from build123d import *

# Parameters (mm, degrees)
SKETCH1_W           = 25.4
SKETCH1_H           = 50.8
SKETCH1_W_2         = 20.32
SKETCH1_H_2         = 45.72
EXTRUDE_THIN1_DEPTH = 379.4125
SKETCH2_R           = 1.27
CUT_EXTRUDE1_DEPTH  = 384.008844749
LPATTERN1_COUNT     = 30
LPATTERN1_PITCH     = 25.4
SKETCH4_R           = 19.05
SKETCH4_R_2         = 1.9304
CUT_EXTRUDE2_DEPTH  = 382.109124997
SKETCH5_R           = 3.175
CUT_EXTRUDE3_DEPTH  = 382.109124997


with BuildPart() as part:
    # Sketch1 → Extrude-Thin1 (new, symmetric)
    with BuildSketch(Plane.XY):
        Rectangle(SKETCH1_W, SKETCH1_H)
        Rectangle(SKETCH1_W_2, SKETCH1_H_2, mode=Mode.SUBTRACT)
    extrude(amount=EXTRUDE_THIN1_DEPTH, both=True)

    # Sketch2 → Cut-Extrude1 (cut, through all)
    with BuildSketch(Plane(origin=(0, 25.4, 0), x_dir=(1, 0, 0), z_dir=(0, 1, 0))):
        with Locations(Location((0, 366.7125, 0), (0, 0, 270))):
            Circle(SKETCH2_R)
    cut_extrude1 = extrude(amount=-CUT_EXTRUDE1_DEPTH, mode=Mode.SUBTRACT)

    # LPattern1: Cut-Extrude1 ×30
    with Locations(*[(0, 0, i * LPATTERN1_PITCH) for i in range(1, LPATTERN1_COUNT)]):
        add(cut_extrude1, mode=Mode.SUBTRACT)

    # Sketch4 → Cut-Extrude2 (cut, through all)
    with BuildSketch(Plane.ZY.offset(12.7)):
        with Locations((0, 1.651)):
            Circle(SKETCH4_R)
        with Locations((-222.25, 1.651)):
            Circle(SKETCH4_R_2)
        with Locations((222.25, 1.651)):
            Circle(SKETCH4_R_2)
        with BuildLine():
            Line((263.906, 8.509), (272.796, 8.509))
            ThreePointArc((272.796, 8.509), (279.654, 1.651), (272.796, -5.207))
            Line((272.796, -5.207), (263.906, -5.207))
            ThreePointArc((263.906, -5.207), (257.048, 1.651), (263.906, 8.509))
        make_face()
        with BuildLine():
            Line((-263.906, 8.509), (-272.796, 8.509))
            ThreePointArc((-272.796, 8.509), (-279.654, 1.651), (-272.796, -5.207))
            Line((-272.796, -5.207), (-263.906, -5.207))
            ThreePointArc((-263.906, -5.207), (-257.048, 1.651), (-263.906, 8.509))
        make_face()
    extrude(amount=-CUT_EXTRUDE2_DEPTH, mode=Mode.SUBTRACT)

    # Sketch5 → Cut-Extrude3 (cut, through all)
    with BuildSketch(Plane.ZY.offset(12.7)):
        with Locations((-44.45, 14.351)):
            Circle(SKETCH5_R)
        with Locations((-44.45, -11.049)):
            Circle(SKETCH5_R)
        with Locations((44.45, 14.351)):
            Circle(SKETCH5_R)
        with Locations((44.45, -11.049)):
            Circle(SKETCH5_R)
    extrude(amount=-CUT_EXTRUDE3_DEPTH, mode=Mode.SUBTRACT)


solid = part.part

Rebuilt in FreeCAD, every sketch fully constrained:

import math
import FreeCAD as App
import Part
import Sketcher
Q = App.Units.Quantity


def add_polygon(sketch, points):
    """Adds a closed chain of lines whose ends are joined by coincident constraints."""
    first, n = sketch.GeometryCount, len(points)
    for a, b in zip(points, points[1:] + points[:1]):
        sketch.addGeometry(Part.LineSegment(App.Vector(*a, 0), App.Vector(*b, 0)), False)
    for i in range(n):
        sketch.addConstraint(Sketcher.Constraint("Coincident", first + i, 2, first + (i + 1) % n, 1))

doc = App.newDocument("Part")
params = doc.addObject("Spreadsheet::Sheet", "Params")
for row, (alias, value) in enumerate([
    ("sketch1_width", "1 in"),
    ("sketch1_height", "2 in"),
    ("sketch1_width2", "0.8 in"),
    ("sketch1_height2", "1.8 in"),
    ("pad1_length", "29.875 in"),
    ("sketch2_diameter", "0.1 in"),
    ("linearpattern_pitch", "1 in"),
    ("sketch3_diameter", "1.5 in"),
    ("sketch3_radius", "0.27 in"),
    ("sketch3_diameter2", "0.152 in"),
    ("sketch3_height", "0.35 in"),
    ("sketch4_diameter", "0.25 in"),
], start=1):
    params.set(f"A{row}", alias)
    params.set(f"B{row}", "=" + value)
    params.setAlias(f"B{row}", alias)

body = doc.addObject("PartDesign::Body", "Body")

# Sketch on XY plane
sketch1 = doc.addObject("Sketcher::SketchObject", "Sketch")
body.addObject(sketch1)
sketch1.AttachmentSupport = (doc.XY_Plane, [""])
sketch1.MapMode = "FlatFace"
add_polygon(sketch1, [(-12.7, 25.4), (-12.7, -25.4), (12.7, -25.4), (12.7, 25.4)])  # lines 0-3
add_polygon(sketch1, [(10.16, -22.86), (-10.16, -22.86), (-10.16, 22.86), (10.16, 22.86)])  # lines 4-7
sketch1.addConstraint([
    Sketcher.Constraint("Vertical", 0),
    Sketcher.Constraint("Horizontal", 1),
    Sketcher.Constraint("Vertical", 2),
    Sketcher.Constraint("Horizontal", 3),
    Sketcher.Constraint("Horizontal", 4),
    Sketcher.Constraint("Vertical", 5),
    Sketcher.Constraint("Horizontal", 6),
    Sketcher.Constraint("Vertical", 7),
    Sketcher.Constraint("Symmetric", 0, 2, 2, 2, -1, 1),
    Sketcher.Constraint("Symmetric", 4, 2, 6, 2, -1, 1),
    Sketcher.Constraint("DistanceX", 1, 1, 1, 2, Q("1 in")),
    Sketcher.Constraint("DistanceY", 0, 2, 0, 1, Q("2 in")),
    Sketcher.Constraint("DistanceX", 4, 2, 4, 1, Q("0.8 in")),
    Sketcher.Constraint("DistanceY", 5, 1, 5, 2, Q("1.8 in")),
])
sketch1.setExpression("Constraints[18]", "Params.sketch1_width")
sketch1.setExpression("Constraints[19]", "Params.sketch1_height")
sketch1.setExpression("Constraints[20]", "Params.sketch1_width2")
sketch1.setExpression("Constraints[21]", "Params.sketch1_height2")
pad1 = doc.addObject("PartDesign::Pad", "Pad")
body.addObject(pad1)
pad1.Profile = sketch1
pad1.setExpression("Length", "Params.pad1_length")
pad1.Midplane = True

# Sketch on XZ plane
sketch2 = doc.addObject("Sketcher::SketchObject", "Sketch001")
body.addObject(sketch2)
sketch2.AttachmentSupport = (doc.XZ_Plane, [""])
sketch2.MapMode = "FlatFace"
sketch2.AttachmentOffset = App.Placement(App.Vector(0, 0, -1 * 25.4), App.Rotation())
sketch2.addGeometry(Part.Circle(App.Vector(0, -366.7125, 0), App.Vector(0, 0, 1), 1.27), False)
sketch2.addConstraint([
    Sketcher.Constraint("PointOnObject", 0, 3, -2),
    Sketcher.Constraint("Diameter", 0, Q("0.1 in")),
    Sketcher.Constraint("DistanceY", 0, 3, -1, 1, Q("14.4375 in")),
])
sketch2.setExpression("Constraints[1]", "Params.sketch2_diameter")
pocket1 = doc.addObject("PartDesign::Pocket", "Pocket")
body.addObject(pocket1)
pocket1.Profile = sketch2
pocket1.Type = "ThroughAll"
pocket1.Reversed = True
doc.recompute()

linearpattern = doc.addObject("PartDesign::LinearPattern", "LinearPattern")
body.addObject(linearpattern)
linearpattern.Originals = [pocket1]
linearpattern.Direction = (doc.Z_Axis, [""])
linearpattern.Mode = "offset"
linearpattern.setExpression("Offset", "Params.linearpattern_pitch")
linearpattern.Occurrences = 30
body.Tip = linearpattern

# Sketch on YZ plane
sketch3 = doc.addObject("Sketcher::SketchObject", "Sketch002")
body.addObject(sketch3)
sketch3.AttachmentSupport = (doc.YZ_Plane, [""])
sketch3.MapMode = "FlatFace"
sketch3.AttachmentOffset = App.Placement(App.Vector(0, 0, -0.5 * 25.4), App.Rotation())
sketch3.addGeometry([
    Part.Circle(App.Vector(1.651, 0, 0), App.Vector(0, 0, 1), 19.05),  # 0
    Part.Circle(App.Vector(1.651, -222.25, 0), App.Vector(0, 0, 1), 1.9304),  # 1
    Part.Circle(App.Vector(1.651, 222.25, 0), App.Vector(0, 0, 1), 1.9304),  # 2
    Part.LineSegment(App.Vector(8.509, 272.796, 0), App.Vector(8.509, 263.906, 0)),  # 3
    Part.ArcOfCircle(Part.Circle(App.Vector(1.651, 263.906, 0), App.Vector(0, 0, 1), 6.858), math.radians(180), math.radians(360)),  # 4
    Part.LineSegment(App.Vector(-5.207, 263.906, 0), App.Vector(-5.207, 272.796, 0)),  # 5
    Part.ArcOfCircle(Part.Circle(App.Vector(1.651, 272.796, 0), App.Vector(0, 0, 1), 6.858), math.radians(0), math.radians(180)),  # 6
    Part.LineSegment(App.Vector(8.509, -263.906, 0), App.Vector(8.509, -272.796, 0)),  # 7
    Part.ArcOfCircle(Part.Circle(App.Vector(1.651, -272.796, 0), App.Vector(0, 0, 1), 6.858), math.radians(180), math.radians(360)),  # 8
    Part.LineSegment(App.Vector(-5.207, -272.796, 0), App.Vector(-5.207, -263.906, 0)),  # 9
    Part.ArcOfCircle(Part.Circle(App.Vector(1.651, -263.906, 0), App.Vector(0, 0, 1), 6.858), math.radians(0), math.radians(180)),  # 10
], False)
sketch3.addConstraint([
    Sketcher.Constraint("Tangent", 3, 2, 4, 2),
    Sketcher.Constraint("Tangent", 4, 1, 5, 1),
    Sketcher.Constraint("Tangent", 5, 2, 6, 2),
    Sketcher.Constraint("Tangent", 6, 1, 3, 1),
    Sketcher.Constraint("Tangent", 7, 2, 8, 2),
    Sketcher.Constraint("Tangent", 8, 1, 9, 1),
    Sketcher.Constraint("Tangent", 9, 2, 10, 2),
    Sketcher.Constraint("Tangent", 10, 1, 7, 1),
    Sketcher.Constraint("Vertical", 3),
    Sketcher.Constraint("Vertical", 5),
    Sketcher.Constraint("Vertical", 7),
    Sketcher.Constraint("Vertical", 9),
    Sketcher.Constraint("Equal", 1, 2),
    Sketcher.Constraint("Equal", 6, 8),
    Sketcher.Constraint("Symmetric", 1, 3, 2, 3, -1),
    Sketcher.Constraint("Symmetric", 6, 3, 8, 3, -1),
    Sketcher.Constraint("PointOnObject", 0, 3, -1),
    Sketcher.Constraint("Vertical", 0, 3, 1, 3),
    Sketcher.Constraint("Vertical", 2, 3, 4, 3),
    Sketcher.Constraint("Equal", 5, 7),
    Sketcher.Constraint("Diameter", 0, Q("1.5 in")),
    Sketcher.Constraint("Radius", 4, Q("0.27 in")),
    Sketcher.Constraint("Diameter", 1, Q("0.152 in")),
    Sketcher.Constraint("DistanceY", 3, 2, 3, 1, Q("0.35 in")),
    Sketcher.Constraint("DistanceY", 1, 3, 2, 3, Q("17.5 in")),
    Sketcher.Constraint("DistanceY", -1, 1, 4, 3, Q("10.39 in")),
    Sketcher.Constraint("DistanceX", -1, 1, 0, 3, Q("0.065 in")),
])
sketch3.setExpression("Constraints[20]", "Params.sketch3_diameter")
sketch3.setExpression("Constraints[21]", "Params.sketch3_radius")
sketch3.setExpression("Constraints[22]", "Params.sketch3_diameter2")
sketch3.setExpression("Constraints[23]", "Params.sketch3_height")
pocket2 = doc.addObject("PartDesign::Pocket", "Pocket001")
body.addObject(pocket2)
pocket2.Profile = sketch3
pocket2.Type = "ThroughAll"
pocket2.Reversed = True

# Sketch on YZ plane
sketch4 = doc.addObject("Sketcher::SketchObject", "Sketch003")
body.addObject(sketch4)
sketch4.AttachmentSupport = (doc.YZ_Plane, [""])
sketch4.MapMode = "FlatFace"
sketch4.AttachmentOffset = App.Placement(App.Vector(0, 0, -0.5 * 25.4), App.Rotation())
sketch4.addGeometry([
    Part.Circle(App.Vector(14.351, -44.45, 0), App.Vector(0, 0, 1), 3.175),
    Part.Circle(App.Vector(-11.049, -44.45, 0), App.Vector(0, 0, 1), 3.175),
    Part.Circle(App.Vector(14.351, 44.45, 0), App.Vector(0, 0, 1), 3.175),
    Part.Circle(App.Vector(-11.049, 44.45, 0), App.Vector(0, 0, 1), 3.175),
], False)
sketch4.addConstraint([
    Sketcher.Constraint("Equal", 0, 1),
    Sketcher.Constraint("Equal", 1, 2),
    Sketcher.Constraint("Equal", 2, 3),
    Sketcher.Constraint("Symmetric", 0, 3, 2, 3, -1),
    Sketcher.Constraint("Symmetric", 1, 3, 3, 3, -1),
    Sketcher.Constraint("Horizontal", 0, 3, 1, 3),
    Sketcher.Constraint("Diameter", 0, Q("0.25 in")),
    Sketcher.Constraint("DistanceX", 1, 3, 0, 3, Q("1 in")),
    Sketcher.Constraint("DistanceY", 0, 3, 2, 3, Q("3.5 in")),
    Sketcher.Constraint("DistanceX", -1, 1, 0, 3, Q("0.565 in")),
])
sketch4.setExpression("Constraints[6]", "Params.sketch4_diameter")
pocket3 = doc.addObject("PartDesign::Pocket", "Pocket002")
body.addObject(pocket3)
pocket3.Profile = sketch4
pocket3.Type = "ThroughAll"
pocket3.Reversed = True

doc.recompute()
